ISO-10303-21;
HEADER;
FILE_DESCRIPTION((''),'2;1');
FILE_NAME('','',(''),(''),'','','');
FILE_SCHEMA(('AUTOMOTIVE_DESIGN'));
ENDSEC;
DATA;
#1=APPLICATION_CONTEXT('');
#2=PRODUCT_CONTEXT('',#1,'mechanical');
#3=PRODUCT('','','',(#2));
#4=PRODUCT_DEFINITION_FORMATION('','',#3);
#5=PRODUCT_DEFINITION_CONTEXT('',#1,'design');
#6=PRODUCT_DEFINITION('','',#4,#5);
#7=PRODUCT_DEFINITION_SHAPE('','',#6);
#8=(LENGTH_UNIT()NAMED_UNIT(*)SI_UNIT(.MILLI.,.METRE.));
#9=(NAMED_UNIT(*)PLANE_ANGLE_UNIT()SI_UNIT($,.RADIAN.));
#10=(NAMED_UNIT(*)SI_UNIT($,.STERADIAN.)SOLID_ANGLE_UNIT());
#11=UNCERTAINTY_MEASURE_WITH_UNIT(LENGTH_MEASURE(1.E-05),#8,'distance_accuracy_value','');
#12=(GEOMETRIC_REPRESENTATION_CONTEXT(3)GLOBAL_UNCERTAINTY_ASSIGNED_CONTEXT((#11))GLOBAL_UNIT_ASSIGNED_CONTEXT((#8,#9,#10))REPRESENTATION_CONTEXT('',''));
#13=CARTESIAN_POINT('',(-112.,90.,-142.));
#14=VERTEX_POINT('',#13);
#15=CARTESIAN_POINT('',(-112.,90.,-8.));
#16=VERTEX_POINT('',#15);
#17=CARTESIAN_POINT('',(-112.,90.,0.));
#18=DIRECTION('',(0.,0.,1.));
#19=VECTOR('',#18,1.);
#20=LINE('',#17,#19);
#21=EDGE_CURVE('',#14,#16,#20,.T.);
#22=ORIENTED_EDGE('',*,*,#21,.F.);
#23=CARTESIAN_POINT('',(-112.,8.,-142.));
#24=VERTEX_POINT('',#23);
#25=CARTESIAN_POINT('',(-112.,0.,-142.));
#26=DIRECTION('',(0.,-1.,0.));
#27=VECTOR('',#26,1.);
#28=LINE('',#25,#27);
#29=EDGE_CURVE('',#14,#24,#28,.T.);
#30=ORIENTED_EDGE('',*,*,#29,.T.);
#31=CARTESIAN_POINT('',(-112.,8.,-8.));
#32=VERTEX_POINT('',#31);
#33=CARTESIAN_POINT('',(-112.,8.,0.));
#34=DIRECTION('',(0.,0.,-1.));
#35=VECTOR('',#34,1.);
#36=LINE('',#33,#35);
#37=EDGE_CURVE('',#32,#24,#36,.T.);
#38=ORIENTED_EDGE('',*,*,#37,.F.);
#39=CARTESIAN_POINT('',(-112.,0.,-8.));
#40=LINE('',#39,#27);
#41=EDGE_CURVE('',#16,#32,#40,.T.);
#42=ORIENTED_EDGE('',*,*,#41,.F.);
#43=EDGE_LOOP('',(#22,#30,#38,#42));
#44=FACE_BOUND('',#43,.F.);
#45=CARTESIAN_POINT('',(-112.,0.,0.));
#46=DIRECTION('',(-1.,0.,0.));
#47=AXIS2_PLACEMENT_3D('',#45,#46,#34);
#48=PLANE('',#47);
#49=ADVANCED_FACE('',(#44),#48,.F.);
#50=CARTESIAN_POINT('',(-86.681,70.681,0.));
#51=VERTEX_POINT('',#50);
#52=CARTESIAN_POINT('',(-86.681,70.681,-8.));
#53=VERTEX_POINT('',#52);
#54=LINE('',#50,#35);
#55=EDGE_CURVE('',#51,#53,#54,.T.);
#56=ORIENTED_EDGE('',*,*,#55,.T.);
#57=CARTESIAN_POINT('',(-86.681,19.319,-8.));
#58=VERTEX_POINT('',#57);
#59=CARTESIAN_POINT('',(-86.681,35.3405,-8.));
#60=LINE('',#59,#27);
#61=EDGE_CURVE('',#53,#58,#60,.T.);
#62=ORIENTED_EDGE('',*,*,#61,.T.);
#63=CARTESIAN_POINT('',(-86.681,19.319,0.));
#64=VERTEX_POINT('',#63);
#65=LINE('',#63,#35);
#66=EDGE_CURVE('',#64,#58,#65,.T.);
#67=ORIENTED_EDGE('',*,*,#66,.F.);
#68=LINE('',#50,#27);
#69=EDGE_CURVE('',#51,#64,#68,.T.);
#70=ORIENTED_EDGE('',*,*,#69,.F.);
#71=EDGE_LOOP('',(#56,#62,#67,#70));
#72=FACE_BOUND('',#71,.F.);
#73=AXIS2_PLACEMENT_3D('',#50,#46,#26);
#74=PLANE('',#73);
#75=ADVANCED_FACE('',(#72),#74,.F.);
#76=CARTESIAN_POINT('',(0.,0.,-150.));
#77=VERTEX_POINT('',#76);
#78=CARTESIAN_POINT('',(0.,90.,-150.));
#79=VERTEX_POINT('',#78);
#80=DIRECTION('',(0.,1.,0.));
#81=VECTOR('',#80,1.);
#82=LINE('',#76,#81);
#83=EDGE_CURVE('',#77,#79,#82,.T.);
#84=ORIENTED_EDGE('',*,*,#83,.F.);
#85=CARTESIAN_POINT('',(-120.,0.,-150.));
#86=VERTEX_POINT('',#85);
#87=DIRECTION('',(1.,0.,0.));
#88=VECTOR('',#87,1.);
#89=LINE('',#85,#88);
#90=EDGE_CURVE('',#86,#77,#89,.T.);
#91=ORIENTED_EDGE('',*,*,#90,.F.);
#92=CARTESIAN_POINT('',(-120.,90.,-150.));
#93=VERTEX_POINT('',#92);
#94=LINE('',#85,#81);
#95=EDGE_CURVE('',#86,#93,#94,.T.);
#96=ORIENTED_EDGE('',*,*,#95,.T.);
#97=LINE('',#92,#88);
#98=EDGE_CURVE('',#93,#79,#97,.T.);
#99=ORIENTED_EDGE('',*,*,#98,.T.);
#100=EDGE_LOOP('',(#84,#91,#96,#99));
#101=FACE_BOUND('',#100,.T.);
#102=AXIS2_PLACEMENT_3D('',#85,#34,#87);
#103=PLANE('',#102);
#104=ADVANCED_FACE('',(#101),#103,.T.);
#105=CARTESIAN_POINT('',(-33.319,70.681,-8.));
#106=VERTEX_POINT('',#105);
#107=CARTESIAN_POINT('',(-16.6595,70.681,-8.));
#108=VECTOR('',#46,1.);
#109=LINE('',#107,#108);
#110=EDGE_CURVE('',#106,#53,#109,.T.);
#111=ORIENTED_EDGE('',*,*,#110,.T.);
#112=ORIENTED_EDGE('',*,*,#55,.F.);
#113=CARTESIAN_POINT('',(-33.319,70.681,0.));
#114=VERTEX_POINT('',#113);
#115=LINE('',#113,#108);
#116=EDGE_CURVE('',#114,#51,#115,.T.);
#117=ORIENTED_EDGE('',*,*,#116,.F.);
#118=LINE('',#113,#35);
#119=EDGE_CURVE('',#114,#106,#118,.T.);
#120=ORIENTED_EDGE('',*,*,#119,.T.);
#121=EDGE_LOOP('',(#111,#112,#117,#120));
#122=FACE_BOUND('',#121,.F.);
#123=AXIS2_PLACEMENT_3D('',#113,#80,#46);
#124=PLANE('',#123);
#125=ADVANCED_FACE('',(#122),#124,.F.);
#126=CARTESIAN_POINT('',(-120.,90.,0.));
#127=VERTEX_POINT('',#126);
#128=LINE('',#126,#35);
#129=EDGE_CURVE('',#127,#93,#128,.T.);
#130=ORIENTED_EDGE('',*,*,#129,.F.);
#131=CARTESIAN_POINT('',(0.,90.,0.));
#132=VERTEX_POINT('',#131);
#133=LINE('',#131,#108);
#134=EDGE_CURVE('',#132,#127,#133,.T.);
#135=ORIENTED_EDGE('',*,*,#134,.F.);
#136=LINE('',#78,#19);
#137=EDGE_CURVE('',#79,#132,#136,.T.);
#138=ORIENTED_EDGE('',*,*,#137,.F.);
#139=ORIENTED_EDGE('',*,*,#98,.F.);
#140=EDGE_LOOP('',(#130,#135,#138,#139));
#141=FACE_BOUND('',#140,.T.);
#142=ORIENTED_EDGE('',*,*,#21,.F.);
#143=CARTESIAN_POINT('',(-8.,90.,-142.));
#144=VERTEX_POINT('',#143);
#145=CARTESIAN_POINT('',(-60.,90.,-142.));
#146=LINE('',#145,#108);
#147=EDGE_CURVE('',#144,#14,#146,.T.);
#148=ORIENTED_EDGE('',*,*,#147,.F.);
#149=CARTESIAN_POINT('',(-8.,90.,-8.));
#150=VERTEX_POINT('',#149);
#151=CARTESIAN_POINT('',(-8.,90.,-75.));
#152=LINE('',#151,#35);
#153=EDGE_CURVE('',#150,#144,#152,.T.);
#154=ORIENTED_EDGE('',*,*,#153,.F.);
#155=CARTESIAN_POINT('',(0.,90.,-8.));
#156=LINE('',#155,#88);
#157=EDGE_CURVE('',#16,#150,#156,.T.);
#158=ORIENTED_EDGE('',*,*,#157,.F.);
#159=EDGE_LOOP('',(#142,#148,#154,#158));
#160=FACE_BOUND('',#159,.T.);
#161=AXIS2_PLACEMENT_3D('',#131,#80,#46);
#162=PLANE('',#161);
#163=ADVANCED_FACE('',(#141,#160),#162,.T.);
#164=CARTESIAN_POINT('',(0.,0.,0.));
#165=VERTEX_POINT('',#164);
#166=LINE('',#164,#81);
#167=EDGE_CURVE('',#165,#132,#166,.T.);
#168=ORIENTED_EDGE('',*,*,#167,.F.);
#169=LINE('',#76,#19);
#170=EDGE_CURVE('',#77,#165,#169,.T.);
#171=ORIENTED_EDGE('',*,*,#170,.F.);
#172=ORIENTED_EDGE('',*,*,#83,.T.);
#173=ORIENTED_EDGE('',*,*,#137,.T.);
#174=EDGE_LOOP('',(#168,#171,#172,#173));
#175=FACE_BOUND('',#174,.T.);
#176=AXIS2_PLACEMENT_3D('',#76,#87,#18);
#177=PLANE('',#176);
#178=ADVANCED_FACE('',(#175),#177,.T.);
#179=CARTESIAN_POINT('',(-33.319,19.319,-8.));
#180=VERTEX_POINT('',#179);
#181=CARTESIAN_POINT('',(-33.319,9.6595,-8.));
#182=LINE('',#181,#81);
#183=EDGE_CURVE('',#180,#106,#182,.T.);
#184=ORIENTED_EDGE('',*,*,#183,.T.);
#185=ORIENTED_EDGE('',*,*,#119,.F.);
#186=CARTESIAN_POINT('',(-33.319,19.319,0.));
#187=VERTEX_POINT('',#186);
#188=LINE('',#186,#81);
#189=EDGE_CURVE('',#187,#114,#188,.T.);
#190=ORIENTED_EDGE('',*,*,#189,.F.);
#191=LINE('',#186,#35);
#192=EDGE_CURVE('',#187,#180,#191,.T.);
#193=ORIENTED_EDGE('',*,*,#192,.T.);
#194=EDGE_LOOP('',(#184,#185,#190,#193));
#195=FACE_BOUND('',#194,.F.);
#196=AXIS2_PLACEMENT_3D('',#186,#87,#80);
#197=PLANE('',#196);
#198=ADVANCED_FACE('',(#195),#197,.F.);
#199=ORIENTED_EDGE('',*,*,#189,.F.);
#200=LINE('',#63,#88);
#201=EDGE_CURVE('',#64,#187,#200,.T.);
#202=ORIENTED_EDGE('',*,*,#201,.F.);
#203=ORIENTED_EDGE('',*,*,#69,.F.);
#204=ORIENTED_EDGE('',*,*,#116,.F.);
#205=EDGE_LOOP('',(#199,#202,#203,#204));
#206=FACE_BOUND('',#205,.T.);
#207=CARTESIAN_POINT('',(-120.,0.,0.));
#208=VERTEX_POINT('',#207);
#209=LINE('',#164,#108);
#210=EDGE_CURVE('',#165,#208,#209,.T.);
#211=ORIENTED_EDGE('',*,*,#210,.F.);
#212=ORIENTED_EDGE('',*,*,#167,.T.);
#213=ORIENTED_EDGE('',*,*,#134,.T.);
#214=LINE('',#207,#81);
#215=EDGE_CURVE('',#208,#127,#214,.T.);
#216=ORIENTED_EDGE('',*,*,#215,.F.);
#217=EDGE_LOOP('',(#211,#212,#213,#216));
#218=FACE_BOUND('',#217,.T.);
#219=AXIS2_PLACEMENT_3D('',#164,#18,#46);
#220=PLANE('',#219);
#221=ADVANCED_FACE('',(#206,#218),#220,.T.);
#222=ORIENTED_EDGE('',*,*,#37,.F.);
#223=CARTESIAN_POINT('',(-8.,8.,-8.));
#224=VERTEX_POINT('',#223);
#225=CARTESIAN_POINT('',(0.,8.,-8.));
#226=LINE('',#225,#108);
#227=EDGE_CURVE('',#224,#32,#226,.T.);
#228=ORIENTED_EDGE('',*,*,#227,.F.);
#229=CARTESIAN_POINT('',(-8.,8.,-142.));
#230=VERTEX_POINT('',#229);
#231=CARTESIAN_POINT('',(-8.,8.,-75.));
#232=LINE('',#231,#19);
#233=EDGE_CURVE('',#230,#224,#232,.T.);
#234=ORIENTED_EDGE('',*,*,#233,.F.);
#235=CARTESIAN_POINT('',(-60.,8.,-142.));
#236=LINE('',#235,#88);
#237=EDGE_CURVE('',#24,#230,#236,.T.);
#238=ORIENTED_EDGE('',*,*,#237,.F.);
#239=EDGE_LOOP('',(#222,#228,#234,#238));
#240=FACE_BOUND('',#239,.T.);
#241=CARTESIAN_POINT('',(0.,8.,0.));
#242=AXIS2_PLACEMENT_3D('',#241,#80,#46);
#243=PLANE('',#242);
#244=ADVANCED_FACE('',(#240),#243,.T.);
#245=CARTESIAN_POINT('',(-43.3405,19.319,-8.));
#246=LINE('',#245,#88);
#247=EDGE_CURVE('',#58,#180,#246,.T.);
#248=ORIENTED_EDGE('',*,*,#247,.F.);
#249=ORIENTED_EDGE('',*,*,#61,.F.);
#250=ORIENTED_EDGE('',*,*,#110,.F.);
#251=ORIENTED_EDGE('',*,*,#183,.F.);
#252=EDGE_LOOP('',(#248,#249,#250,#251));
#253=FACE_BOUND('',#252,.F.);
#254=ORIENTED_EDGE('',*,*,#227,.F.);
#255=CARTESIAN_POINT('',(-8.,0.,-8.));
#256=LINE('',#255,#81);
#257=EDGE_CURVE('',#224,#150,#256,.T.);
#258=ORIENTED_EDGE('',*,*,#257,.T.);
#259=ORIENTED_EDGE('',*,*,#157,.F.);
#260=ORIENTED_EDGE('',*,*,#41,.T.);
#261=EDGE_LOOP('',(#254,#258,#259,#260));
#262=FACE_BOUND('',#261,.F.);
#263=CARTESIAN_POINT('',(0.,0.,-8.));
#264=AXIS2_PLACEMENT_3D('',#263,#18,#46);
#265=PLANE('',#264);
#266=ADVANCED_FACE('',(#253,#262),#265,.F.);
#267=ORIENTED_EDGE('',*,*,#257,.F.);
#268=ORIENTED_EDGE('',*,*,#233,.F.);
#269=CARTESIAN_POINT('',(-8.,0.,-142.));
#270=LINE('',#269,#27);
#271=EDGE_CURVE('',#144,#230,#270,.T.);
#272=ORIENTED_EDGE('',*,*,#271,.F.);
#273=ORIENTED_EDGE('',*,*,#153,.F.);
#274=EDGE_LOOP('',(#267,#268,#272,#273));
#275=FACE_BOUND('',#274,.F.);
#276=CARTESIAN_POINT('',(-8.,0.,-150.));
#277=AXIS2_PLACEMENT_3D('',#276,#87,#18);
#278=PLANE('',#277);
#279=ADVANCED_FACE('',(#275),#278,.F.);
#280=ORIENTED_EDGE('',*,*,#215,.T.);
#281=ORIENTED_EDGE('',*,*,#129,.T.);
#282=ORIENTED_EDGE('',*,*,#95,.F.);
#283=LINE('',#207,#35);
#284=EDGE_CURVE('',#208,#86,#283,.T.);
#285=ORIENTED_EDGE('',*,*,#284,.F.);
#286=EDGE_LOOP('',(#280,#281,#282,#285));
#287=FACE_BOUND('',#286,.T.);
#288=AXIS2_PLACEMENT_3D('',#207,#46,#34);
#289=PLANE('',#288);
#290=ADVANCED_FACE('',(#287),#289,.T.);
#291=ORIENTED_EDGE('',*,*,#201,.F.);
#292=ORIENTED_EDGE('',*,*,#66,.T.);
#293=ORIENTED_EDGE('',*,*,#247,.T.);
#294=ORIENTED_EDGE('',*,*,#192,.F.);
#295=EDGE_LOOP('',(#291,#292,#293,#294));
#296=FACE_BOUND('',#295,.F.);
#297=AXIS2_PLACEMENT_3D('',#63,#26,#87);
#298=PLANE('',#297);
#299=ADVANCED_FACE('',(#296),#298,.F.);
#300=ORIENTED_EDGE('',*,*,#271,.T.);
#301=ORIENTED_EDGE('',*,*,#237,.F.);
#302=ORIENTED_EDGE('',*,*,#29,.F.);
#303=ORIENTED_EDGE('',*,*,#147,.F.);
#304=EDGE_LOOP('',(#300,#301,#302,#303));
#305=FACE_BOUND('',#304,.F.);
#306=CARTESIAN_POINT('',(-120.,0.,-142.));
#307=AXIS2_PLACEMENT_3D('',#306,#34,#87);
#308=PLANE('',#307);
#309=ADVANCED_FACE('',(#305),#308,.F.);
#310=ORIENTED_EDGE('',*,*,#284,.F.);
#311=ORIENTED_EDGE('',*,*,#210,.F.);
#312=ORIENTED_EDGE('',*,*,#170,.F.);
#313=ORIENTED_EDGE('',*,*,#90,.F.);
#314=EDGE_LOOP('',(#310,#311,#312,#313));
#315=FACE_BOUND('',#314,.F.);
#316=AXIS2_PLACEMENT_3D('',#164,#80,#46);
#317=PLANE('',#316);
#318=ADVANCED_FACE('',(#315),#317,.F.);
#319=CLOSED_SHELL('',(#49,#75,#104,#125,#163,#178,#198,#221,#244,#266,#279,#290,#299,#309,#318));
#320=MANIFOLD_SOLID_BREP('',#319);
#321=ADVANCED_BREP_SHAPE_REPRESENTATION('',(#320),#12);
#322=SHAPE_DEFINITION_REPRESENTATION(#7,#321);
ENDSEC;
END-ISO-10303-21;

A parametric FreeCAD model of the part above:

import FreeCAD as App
import Part
import Sketcher
from FreeCAD import Vector
Q = App.Units.Quantity


def faces_at(feature, points):
    """Names of the faces that lie closest to the given points."""
    faces = feature.Shape.Faces
    near = lambda p: min(range(len(faces)), key=lambda i: faces[i].distToShape(Part.Vertex(*p))[0])
    return sorted({f"Face{near(p) + 1}" for p in points})

doc = App.newDocument("Part")
params = doc.addObject("Spreadsheet::Sheet", "Params")
for row, (alias, value) in enumerate([
    ("sketch1_width", "120 mm"),
    ("sketch1_height", "150 mm"),
    ("pad1_length", "90 mm"),
    ("thickness_wall", "8 mm"),
    ("pocket1_length", "80 mm"),
], start=1):
    params.set(f"A{row}", alias)
    params.set(f"B{row}", "=" + value)
    params.setAlias(f"B{row}", alias)

body = doc.addObject("PartDesign::Body", "Body")

# Sketch on XZ plane
sketch1 = doc.addObject("Sketcher::SketchObject", "Sketch")
body.addObject(sketch1)
sketch1.AttachmentSupport = (doc.XZ_Plane, [""])
sketch1.MapMode = "FlatFace"
sketch1.addGeometry([
    Part.LineSegment(Vector(-120, 0, 0), Vector(0, 0, 0)),
    Part.LineSegment(Vector(0, 0, 0), Vector(0, -150, 0)),
    Part.LineSegment(Vector(0, -150, 0), Vector(-120, -150, 0)),
    Part.LineSegment(Vector(-120, -150, 0), Vector(-120, 0, 0)),
], False)
sketch1.addConstraint([
    Sketcher.Constraint("Coincident", 0, 2, 1, 1),
    Sketcher.Constraint("Coincident", 1, 2, 2, 1),
    Sketcher.Constraint("Coincident", 2, 2, 3, 1),
    Sketcher.Constraint("Coincident", 3, 2, 0, 1),
    Sketcher.Constraint("Horizontal", 0),
    Sketcher.Constraint("Vertical", 1),
    Sketcher.Constraint("Horizontal", 2),
    Sketcher.Constraint("Vertical", 3),
    Sketcher.Constraint("Coincident", 0, 2, -1, 1),
    Sketcher.Constraint("DistanceX", 0, 1, 0, 2, Q("120 mm")),
    Sketcher.Constraint("DistanceY", 1, 2, 1, 1, Q("150 mm")),
])
sketch1.setExpression("Constraints[9]", "Params.sketch1_width")
sketch1.setExpression("Constraints[10]", "Params.sketch1_height")
pad1 = doc.addObject("PartDesign::Pad", "Pad")
body.addObject(pad1)
pad1.Profile = sketch1
pad1.setExpression("Length", "Params.pad1_length")
pad1.Reversed = True
doc.recompute()

thickness = doc.addObject("PartDesign::Thickness", "Thickness")
body.addObject(thickness)
thickness.Base = (pad1, faces_at(pad1, [(-80, 90, -100)]))
thickness.setExpression("Value", "Params.thickness_wall")
thickness.Reversed = True
thickness.Join = "Intersection"

# Sketch on XY plane
sketch2 = doc.addObject("Sketcher::SketchObject", "Sketch001")
body.addObject(sketch2)
sketch2.AttachmentSupport = (doc.XY_Plane, [""])
sketch2.MapMode = "FlatFace"
sketch2.addGeometry([
    Part.LineSegment(Vector(-33.319, 19.319, 0), Vector(-33.319, 70.681, 0)),
    Part.LineSegment(Vector(-33.319, 70.681, 0), Vector(-86.681, 70.681, 0)),
    Part.LineSegment(Vector(-86.681, 70.681, 0), Vector(-86.681, 19.319, 0)),
    Part.LineSegment(Vector(-86.681, 19.319, 0), Vector(-33.319, 19.319, 0)),
], False)
sketch2.addConstraint([
    Sketcher.Constraint("Coincident", 0, 2, 1, 1),
    Sketcher.Constraint("Coincident", 1, 2, 2, 1),
    Sketcher.Constraint("Coincident", 2, 2, 3, 1),
    Sketcher.Constraint("Coincident", 3, 2, 0, 1),
    Sketcher.Constraint("Vertical", 0),
    Sketcher.Constraint("Horizontal", 1),
    Sketcher.Constraint("Vertical", 2),
    Sketcher.Constraint("Horizontal", 3),
    Sketcher.Constraint("DistanceX", 1, 2, 1, 1, Q("53.362 mm")),
    Sketcher.Constraint("DistanceY", 0, 1, 0, 2, Q("51.362 mm")),
    Sketcher.Constraint("DistanceX", 0, 2, -1, 1, Q("33.319 mm")),
    Sketcher.Constraint("DistanceY", -1, 1, 0, 2, Q("70.681 mm")),
])
pocket1 = doc.addObject("PartDesign::Pocket", "Pocket")
body.addObject(pocket1)
pocket1.Profile = sketch2
pocket1.setExpression("Length", "Params.pocket1_length")

doc.recompute()
